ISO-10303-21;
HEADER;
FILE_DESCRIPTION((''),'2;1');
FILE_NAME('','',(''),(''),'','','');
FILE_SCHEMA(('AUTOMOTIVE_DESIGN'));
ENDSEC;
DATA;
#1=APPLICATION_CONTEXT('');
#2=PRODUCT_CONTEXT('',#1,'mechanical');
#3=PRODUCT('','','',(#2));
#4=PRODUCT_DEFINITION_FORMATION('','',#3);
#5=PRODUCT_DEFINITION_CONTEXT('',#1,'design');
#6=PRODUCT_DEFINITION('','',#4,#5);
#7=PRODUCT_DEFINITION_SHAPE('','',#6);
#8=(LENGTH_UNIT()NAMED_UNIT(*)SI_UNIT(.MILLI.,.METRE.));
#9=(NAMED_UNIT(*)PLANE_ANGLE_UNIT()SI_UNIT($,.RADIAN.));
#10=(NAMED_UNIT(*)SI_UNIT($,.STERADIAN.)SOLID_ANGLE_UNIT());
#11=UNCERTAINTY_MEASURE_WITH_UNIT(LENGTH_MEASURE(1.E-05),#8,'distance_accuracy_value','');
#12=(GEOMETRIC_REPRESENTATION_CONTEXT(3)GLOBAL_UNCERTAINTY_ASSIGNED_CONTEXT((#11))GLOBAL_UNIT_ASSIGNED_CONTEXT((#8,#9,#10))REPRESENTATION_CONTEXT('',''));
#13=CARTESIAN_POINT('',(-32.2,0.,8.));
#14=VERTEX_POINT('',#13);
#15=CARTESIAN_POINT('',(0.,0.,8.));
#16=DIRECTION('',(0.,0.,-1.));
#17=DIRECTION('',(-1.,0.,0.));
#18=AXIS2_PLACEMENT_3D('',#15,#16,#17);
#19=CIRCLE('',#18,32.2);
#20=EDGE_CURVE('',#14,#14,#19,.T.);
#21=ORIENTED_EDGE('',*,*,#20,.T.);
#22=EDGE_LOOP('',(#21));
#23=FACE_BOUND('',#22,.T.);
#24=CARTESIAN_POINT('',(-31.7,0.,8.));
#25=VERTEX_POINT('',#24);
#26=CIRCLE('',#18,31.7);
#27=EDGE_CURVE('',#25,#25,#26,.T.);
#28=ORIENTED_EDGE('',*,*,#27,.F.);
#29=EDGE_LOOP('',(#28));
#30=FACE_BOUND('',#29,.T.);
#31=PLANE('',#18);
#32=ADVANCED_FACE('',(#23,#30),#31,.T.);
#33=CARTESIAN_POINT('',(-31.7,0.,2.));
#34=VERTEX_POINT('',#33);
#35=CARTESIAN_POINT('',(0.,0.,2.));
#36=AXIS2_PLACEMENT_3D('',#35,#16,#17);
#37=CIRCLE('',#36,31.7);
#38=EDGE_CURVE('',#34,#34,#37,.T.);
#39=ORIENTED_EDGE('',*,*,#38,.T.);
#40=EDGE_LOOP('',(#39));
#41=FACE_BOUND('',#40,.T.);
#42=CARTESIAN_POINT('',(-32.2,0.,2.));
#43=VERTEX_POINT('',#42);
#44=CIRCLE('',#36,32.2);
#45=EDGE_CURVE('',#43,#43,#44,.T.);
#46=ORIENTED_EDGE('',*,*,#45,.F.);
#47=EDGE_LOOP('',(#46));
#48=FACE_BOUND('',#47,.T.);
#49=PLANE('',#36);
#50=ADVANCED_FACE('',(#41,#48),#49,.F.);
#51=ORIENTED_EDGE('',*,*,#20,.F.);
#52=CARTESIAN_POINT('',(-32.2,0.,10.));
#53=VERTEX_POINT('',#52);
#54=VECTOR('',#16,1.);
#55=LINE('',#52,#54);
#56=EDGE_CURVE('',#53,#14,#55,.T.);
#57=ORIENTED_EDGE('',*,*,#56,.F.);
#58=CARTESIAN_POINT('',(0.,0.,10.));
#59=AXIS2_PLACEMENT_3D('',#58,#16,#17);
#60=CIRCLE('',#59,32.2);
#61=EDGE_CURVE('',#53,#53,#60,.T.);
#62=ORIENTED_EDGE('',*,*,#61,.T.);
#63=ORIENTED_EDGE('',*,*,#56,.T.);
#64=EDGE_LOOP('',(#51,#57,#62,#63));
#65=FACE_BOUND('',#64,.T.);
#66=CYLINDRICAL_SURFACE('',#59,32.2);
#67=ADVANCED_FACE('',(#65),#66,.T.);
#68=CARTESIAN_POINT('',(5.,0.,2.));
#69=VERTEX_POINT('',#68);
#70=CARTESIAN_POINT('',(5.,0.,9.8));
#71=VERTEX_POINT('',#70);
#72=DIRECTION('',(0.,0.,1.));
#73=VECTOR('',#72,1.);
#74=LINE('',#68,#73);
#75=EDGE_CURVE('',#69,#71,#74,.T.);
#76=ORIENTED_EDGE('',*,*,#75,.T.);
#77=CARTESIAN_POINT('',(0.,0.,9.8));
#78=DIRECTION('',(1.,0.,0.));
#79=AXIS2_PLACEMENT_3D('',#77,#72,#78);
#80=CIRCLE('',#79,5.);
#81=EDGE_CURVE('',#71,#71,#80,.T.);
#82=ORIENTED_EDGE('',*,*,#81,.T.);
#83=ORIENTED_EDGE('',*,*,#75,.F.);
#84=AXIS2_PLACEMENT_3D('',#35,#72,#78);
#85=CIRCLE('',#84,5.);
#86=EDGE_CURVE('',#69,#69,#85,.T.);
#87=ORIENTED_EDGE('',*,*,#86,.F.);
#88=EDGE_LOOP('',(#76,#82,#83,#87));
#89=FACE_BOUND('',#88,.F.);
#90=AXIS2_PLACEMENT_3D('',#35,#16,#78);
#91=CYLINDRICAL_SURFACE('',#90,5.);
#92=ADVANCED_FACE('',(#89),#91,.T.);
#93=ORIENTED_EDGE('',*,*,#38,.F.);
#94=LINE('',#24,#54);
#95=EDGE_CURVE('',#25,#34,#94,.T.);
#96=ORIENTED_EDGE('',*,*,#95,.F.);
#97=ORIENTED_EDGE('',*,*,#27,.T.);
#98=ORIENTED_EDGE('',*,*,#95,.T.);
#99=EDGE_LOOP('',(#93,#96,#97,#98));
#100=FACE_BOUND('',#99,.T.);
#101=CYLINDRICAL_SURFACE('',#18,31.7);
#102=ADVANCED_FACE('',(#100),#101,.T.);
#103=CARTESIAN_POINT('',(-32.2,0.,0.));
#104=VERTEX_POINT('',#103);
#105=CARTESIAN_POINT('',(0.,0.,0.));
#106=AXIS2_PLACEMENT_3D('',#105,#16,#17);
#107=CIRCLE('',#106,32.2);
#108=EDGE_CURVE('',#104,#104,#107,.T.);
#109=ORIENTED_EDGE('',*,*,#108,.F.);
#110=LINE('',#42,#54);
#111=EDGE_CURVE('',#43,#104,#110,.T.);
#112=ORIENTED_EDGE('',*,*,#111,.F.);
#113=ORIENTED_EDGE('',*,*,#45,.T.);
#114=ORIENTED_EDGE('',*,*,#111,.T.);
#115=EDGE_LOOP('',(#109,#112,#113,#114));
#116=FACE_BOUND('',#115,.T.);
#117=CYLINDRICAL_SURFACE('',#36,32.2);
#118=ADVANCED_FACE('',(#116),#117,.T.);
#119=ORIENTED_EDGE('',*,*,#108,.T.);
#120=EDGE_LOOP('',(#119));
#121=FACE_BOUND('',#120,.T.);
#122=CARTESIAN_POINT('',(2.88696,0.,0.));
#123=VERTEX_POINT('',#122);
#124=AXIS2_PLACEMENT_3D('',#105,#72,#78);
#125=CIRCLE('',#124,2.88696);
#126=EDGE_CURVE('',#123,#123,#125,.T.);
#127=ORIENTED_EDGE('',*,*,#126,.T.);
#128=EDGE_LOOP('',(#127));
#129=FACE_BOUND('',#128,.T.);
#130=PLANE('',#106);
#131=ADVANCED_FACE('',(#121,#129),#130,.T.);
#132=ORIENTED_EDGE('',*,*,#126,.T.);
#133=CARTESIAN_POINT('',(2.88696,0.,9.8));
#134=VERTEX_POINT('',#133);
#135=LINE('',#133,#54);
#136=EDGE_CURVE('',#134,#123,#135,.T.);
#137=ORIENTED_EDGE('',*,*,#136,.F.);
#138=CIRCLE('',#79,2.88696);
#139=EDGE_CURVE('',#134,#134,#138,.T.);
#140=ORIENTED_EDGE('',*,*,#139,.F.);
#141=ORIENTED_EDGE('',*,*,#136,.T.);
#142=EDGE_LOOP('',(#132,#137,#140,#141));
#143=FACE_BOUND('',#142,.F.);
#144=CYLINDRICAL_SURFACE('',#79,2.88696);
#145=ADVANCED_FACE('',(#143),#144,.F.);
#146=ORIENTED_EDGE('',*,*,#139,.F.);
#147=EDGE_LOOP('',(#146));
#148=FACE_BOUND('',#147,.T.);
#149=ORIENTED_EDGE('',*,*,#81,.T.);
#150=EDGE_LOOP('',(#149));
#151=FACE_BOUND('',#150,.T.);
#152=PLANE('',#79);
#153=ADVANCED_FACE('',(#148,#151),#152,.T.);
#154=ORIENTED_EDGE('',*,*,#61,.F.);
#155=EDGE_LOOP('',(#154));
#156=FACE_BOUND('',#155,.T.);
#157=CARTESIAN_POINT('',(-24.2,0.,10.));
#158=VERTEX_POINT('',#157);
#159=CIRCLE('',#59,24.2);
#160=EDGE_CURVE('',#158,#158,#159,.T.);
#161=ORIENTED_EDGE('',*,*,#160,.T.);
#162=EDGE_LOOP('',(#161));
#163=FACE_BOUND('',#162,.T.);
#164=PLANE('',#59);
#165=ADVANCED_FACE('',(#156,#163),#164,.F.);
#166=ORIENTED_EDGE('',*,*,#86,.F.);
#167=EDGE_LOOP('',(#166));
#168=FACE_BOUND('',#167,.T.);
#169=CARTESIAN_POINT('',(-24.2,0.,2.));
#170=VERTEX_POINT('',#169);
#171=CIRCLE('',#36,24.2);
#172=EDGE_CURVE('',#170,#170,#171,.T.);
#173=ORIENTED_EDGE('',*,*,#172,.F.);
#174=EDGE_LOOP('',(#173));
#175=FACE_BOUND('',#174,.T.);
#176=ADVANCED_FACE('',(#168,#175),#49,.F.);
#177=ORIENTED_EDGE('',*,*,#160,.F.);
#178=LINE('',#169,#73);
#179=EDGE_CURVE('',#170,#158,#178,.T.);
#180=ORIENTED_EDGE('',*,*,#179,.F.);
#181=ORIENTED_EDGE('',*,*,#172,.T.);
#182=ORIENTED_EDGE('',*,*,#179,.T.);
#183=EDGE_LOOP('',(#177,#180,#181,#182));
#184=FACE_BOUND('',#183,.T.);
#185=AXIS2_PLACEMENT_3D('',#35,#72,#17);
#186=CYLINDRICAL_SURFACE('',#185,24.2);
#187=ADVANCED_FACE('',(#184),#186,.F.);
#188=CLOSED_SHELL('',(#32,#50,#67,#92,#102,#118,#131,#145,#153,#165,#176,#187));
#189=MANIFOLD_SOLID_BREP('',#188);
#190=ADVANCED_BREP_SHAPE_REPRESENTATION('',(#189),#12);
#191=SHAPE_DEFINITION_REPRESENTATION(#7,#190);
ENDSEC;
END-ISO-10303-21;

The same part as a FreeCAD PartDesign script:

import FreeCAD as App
import Part
import Sketcher
from FreeCAD import Vector


def add_polygon(sketch, points):
    """Adds a closed chain of lines whose ends are joined by coincident constraints."""
    first, n = sketch.GeometryCount, len(points)
    for a, b in zip(points, points[1:] + points[:1]):
        sketch.addGeometry(Part.LineSegment(App.Vector(*a, 0), App.Vector(*b, 0)), False)
    for i in range(n):
        sketch.addConstraint(Sketcher.Constraint("Coincident", first + i, 2, first + (i + 1) % n, 1))

doc = App.newDocument("Part")
body = doc.addObject("PartDesign::Body", "Body")

# Sketch on XZ plane
sketch1 = body.newObject("Sketcher::SketchObject", "Sketch")
sketch1.AttachmentSupport = (doc.getObject("XZ_Plane"), [""])
sketch1.MapMode = "FlatFace"
add_polygon(sketch1, [(-32.2, 0), (0, 0), (0, 2), (-24.2, 2), (-24.2, 10), (-32.2, 10), (-32.2, 8), (-31.7, 8), (-31.7, 2), (-32.2, 2)])  # lines 0-9
sketch1.addConstraint([
    Sketcher.Constraint("Horizontal", 0),
    Sketcher.Constraint("Vertical", 1),
    Sketcher.Constraint("Horizontal", 2),
    Sketcher.Constraint("Vertical", 3),
    Sketcher.Constraint("Horizontal", 4),
    Sketcher.Constraint("Vertical", 5),
    Sketcher.Constraint("Horizontal", 6),
    Sketcher.Constraint("Vertical", 7),
    Sketcher.Constraint("Horizontal", 8),
    Sketcher.Constraint("Vertical", 9),
    Sketcher.Constraint("Coincident", 0, 2, -1, 1),
    Sketcher.Constraint("Horizontal", 2, 2, 7, 2),
    Sketcher.Constraint("Vertical", 5, 2, 8, 2),
    Sketcher.Constraint("Equal", 4, 3),
    Sketcher.Constraint("Equal", 1, 5),
    Sketcher.Constraint("DistanceX", 4, 2, 4, 1, 8.0),
    Sketcher.Constraint("DistanceY", 1, 1, 1, 2, 2.0),
    Sketcher.Constraint("DistanceX", 0, 1, 0, 2, 32.2),
    Sketcher.Constraint("DistanceX", 6, 1, 6, 2, 0.5),
])
revolution = body.newObject("PartDesign::Revolution", "Revolution")
revolution.Profile = sketch1
revolution.ReferenceAxis = (sketch1, ["V_Axis"])
revolution.Angle = 360

# Sketch on XY plane
sketch2 = body.newObject("Sketcher::SketchObject", "Sketch001")
sketch2.AttachmentSupport = (doc.getObject("XY_Plane"), [""])
sketch2.MapMode = "FlatFace"
sketch2.AttachmentOffset = App.Placement(Vector(0, 0, 2), App.Rotation())
sketch2.addGeometry(Part.Circle(Vector(0, 0, 0), Vector(0, 0, 1), 5), False)
sketch2.addConstraint([
    Sketcher.Constraint("Coincident", 0, 3, -1, 1),
    Sketcher.Constraint("Diameter", 0, 10.0),
])
pad1 = body.newObject("PartDesign::Pad", "Pad")
pad1.Profile = sketch2
pad1.Length = 7.8

# Sketch on XY plane
sketch3 = body.newObject("Sketcher::SketchObject", "Sketch002")
sketch3.AttachmentSupport = (doc.getObject("XY_Plane"), [""])
sketch3.MapMode = "FlatFace"
sketch3.AttachmentOffset = App.Placement(Vector(0, 0, 9.8), App.Rotation())
sketch3.addGeometry(Part.Circle(Vector(0, 0, 0), Vector(0, 0, 1), 2.9), False)
sketch3.addConstraint([
    Sketcher.Constraint("Coincident", 0, 3, -1, 1),
    Sketcher.Constraint("Diameter", 0, 5.77392),
])
pocket1 = body.newObject("PartDesign::Pocket", "Pocket")
pocket1.Profile = sketch3
pocket1.Length = 25

doc.recompute()
